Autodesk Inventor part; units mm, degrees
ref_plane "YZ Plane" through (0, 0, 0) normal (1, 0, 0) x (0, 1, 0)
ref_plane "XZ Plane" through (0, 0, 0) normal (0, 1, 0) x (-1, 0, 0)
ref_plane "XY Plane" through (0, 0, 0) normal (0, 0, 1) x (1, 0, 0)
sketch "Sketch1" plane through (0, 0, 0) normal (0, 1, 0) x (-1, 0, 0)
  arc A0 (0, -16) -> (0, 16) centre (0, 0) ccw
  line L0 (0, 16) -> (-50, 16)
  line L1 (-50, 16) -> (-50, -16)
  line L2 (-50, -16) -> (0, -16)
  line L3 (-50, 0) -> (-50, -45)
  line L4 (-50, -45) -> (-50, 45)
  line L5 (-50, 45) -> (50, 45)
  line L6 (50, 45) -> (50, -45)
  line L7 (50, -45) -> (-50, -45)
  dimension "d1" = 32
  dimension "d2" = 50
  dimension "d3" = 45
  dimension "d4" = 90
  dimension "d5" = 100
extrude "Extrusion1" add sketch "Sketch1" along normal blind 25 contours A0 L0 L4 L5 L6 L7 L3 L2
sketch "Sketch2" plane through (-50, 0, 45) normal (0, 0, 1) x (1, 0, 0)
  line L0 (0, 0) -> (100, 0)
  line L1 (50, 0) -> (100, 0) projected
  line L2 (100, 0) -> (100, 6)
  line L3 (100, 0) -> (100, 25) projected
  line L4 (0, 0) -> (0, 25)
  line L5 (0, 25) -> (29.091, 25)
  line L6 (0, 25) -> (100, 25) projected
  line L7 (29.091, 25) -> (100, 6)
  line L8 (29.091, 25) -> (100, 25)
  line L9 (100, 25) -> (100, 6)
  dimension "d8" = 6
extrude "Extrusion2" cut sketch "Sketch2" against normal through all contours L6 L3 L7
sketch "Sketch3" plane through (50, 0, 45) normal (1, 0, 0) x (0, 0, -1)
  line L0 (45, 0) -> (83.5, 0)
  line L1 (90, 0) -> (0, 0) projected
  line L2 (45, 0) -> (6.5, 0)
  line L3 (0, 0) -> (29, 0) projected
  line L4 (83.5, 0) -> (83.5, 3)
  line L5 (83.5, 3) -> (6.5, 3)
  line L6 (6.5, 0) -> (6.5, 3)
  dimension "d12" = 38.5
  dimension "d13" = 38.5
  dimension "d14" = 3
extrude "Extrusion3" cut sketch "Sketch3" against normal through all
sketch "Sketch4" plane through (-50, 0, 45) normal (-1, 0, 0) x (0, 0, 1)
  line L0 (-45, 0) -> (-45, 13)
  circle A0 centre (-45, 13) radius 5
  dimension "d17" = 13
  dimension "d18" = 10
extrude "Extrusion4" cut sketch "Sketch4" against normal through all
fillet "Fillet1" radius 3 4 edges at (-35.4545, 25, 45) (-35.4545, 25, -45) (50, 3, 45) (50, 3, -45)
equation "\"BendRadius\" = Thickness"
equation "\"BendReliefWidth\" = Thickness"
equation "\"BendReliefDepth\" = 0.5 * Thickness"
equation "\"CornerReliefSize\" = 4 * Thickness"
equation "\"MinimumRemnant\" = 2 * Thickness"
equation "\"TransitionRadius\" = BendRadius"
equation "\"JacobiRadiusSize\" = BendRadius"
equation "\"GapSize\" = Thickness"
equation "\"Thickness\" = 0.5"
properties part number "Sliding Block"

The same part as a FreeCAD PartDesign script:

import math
import FreeCAD as App
import Part
import Sketcher
Q = App.Units.Quantity


def edges_at(feature, points):
    """Names of the edges that pass closest to the given points."""
    edges = feature.Shape.Edges
    near = lambda p: min(range(len(edges)), key=lambda i: edges[i].distToShape(Part.Vertex(*p))[0])
    return sorted({f"Edge{near(p) + 1}" for p in points})


def add_polygon(sketch, points):
    """Adds a closed chain of lines whose ends are joined by coincident constraints."""
    first, n = sketch.GeometryCount, len(points)
    for a, b in zip(points, points[1:] + points[:1]):
        sketch.addGeometry(Part.LineSegment(App.Vector(*a, 0), App.Vector(*b, 0)), False)
    for i in range(n):
        sketch.addConstraint(Sketcher.Constraint("Coincident", first + i, 2, first + (i + 1) % n, 1))

doc = App.newDocument("Part")
params = doc.addObject("Spreadsheet::Sheet", "Params")
for row, (alias, value) in enumerate([
    ("sketch1_radius", "16 mm"),
    ("sketch1_width", "50 mm"),
    ("sketch1_height", "90 mm"),
    ("pad1_length", "25 mm"),
    ("sketch2_height", "19 mm"),
    ("sketch3_width", "3 mm"),
    ("sketch4_diameter", "10 mm"),
    ("fillet_radius", "3 mm"),
], start=1):
    params.set(f"A{row}", alias)
    params.set(f"B{row}", "=" + value)
    params.setAlias(f"B{row}", alias)

body = doc.addObject("PartDesign::Body", "Body")

sketch1 = doc.addObject("Sketcher::SketchObject", "Sketch")
body.addObject(sketch1)
sketch1.AttachmentSupport = (doc.XZ_Plane, [""])
sketch1.MapMode = "FlatFace"
sketch1.addGeometry([
    Part.ArcOfCircle(Part.Circle(App.Vector(0, 0, 0), App.Vector(0, 0, 1), 16), math.radians(90), math.radians(270)),
    Part.LineSegment(App.Vector(0, -16, 0), App.Vector(50, -16, 0)),
    Part.LineSegment(App.Vector(50, -16, 0), App.Vector(50, -45, 0)),
    Part.LineSegment(App.Vector(50, -45, 0), App.Vector(-50, -45, 0)),
    Part.LineSegment(App.Vector(-50, -45, 0), App.Vector(-50, 45, 0)),
    Part.LineSegment(App.Vector(-50, 45, 0), App.Vector(50, 45, 0)),
    Part.LineSegment(App.Vector(50, 45, 0), App.Vector(50, 16, 0)),
    Part.LineSegment(App.Vector(50, 16, 0), App.Vector(0, 16, 0)),
], False)
sketch1.addConstraint([
    Sketcher.Constraint("Tangent", 0, 2, 1, 1),
    Sketcher.Constraint("Coincident", 1, 2, 2, 1),
    Sketcher.Constraint("Coincident", 2, 2, 3, 1),
    Sketcher.Constraint("Coincident", 3, 2, 4, 1),
    Sketcher.Constraint("Coincident", 4, 2, 5, 1),
    Sketcher.Constraint("Coincident", 5, 2, 6, 1),
    Sketcher.Constraint("Coincident", 6, 2, 7, 1),
    Sketcher.Constraint("Tangent", 7, 2, 0, 1),
    Sketcher.Constraint("Horizontal", 1),
    Sketcher.Constraint("Vertical", 2),
    Sketcher.Constraint("Horizontal", 3),
    Sketcher.Constraint("Vertical", 4),
    Sketcher.Constraint("Horizontal", 5),
    Sketcher.Constraint("Vertical", 6),
    Sketcher.Constraint("Horizontal", 7),
    Sketcher.Constraint("Coincident", 0, 3, -1, 1),
    Sketcher.Constraint("Symmetric", 2, 2, 4, 2, -1, 1),
    Sketcher.Constraint("Vertical", 2, 2, 5, 2),
    Sketcher.Constraint("Radius", 0, Q("16 mm")),
    Sketcher.Constraint("DistanceX", 1, 1, 1, 2, Q("50 mm")),
    Sketcher.Constraint("DistanceY", 4, 1, 4, 2, Q("90 mm")),
])
sketch1.setExpression("Constraints[18]", "Params.sketch1_radius")
sketch1.setExpression("Constraints[19]", "Params.sketch1_width")
sketch1.setExpression("Constraints[20]", "Params.sketch1_height")
pad1 = doc.addObject("PartDesign::Pad", "Pad")
body.addObject(pad1)
pad1.Profile = sketch1
pad1.setExpression("Length", "Params.pad1_length")
pad1.Reversed = True

sketch2 = doc.addObject("Sketcher::SketchObject", "Sketch001")
body.addObject(sketch2)
sketch2.AttachmentSupport = (doc.XY_Plane, [""])
sketch2.MapMode = "FlatFace"
sketch2.AttachmentOffset = App.Placement(App.Vector(0, 0, 45), App.Rotation())
add_polygon(sketch2, [(50, 25), (-21, 25), (50, 6)])
sketch2.addConstraint([
    Sketcher.Constraint("Horizontal", 0),
    Sketcher.Constraint("Vertical", 2),
    Sketcher.Constraint("DistanceY", -1, 1, 1, 2, Q("6 mm")),
    Sketcher.Constraint("DistanceY", 2, 1, 2, 2, Q("19 mm")),
    Sketcher.Constraint("Angle", 1, Q("-15 deg")),
    Sketcher.Constraint("DistanceX", -1, 1, 1, 2, Q("50 mm")),
])
sketch2.setExpression("Constraints[6]", "Params.sketch2_height")
pocket1 = doc.addObject("PartDesign::Pocket", "Pocket")
body.addObject(pocket1)
pocket1.Profile = sketch2
pocket1.Type = "ThroughAll"

sketch3 = doc.addObject("Sketcher::SketchObject", "Sketch002")
body.addObject(sketch3)
sketch3.AttachmentSupport = (doc.YZ_Plane, [""])
sketch3.MapMode = "FlatFace"
sketch3.AttachmentOffset = App.Placement(App.Vector(0, 0, 50), App.Rotation())
add_polygon(sketch3, [(0, 38.5), (0, -38.5), (3, -38.5), (3, 38.5)])
sketch3.addConstraint([
    Sketcher.Constraint("Vertical", 0),
    Sketcher.Constraint("Horizontal", 1),
    Sketcher.Constraint("Vertical", 2),
    Sketcher.Constraint("Horizontal", 3),
    Sketcher.Constraint("Symmetric", 0, 2, 3, 2, -1, 1),
    Sketcher.Constraint("DistanceX", 1, 1, 1, 2, Q("3 mm")),
    Sketcher.Constraint("DistanceY", 0, 2, -1, 1, Q("38.5 mm")),
])
sketch3.setExpression("Constraints[9]", "Params.sketch3_width")
pocket2 = doc.addObject("PartDesign::Pocket", "Pocket001")
body.addObject(pocket2)
pocket2.Profile = sketch3
pocket2.Type = "ThroughAll"

sketch4 = doc.addObject("Sketcher::SketchObject", "Sketch003")
body.addObject(sketch4)
sketch4.AttachmentSupport = (doc.YZ_Plane, [""])
sketch4.MapMode = "FlatFace"
sketch4.AttachmentOffset = App.Placement(App.Vector(0, 0, -50), App.Rotation())
sketch4.addGeometry(Part.Circle(App.Vector(13, 0, 0), App.Vector(0, 0, 1), 5), False)
sketch4.addConstraint([
    Sketcher.Constraint("PointOnObject", 0, 3, -1),
    Sketcher.Constraint("Diameter", 0, Q("10 mm")),
    Sketcher.Constraint("DistanceX", -1, 1, 0, 3, Q("13 mm")),
])
sketch4.setExpression("Constraints[1]", "Params.sketch4_diameter")
pocket3 = doc.addObject("PartDesign::Pocket", "Pocket002")
body.addObject(pocket3)
pocket3.Profile = sketch4
pocket3.Type = "ThroughAll"
pocket3.Reversed = True
doc.recompute()

fillet = doc.addObject("PartDesign::Fillet", "Fillet")
body.addObject(fillet)
fillet.Base = (pocket3, edges_at(pocket3, [
    (-35.455, 25, 45),
    (-35.455, 25, -45),
    (50, 3, 45),
    (50, 3, -45),
]))
fillet.setExpression("Radius", "Params.fillet_radius")

doc.recompute()
